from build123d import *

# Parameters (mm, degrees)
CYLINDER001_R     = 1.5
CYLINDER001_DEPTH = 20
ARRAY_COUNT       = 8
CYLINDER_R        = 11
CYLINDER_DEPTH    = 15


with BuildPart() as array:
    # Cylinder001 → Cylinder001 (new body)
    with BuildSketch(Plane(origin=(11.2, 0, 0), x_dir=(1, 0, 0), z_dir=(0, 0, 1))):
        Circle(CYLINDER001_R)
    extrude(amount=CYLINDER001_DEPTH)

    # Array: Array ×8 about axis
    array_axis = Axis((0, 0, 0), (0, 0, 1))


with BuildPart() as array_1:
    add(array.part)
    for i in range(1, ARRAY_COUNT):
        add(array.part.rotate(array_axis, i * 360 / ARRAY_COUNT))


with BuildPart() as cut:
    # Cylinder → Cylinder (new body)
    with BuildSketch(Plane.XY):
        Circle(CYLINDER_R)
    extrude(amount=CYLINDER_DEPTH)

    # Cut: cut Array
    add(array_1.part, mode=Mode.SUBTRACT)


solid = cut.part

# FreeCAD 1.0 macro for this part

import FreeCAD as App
import Part
import Sketcher
Q = App.Units.Quantity

doc = App.newDocument("Part")
body = doc.addObject("PartDesign::Body", "Body")

# Sketch on XY plane
sketch1 = body.newObject("Sketcher::SketchObject", "Sketch")
sketch1.AttachmentSupport = (doc.getObject("XY_Plane"), [""])
sketch1.MapMode = "FlatFace"
sketch1.addGeometry(Part.Circle(App.Vector(11.2, 0, 0), App.Vector(0, 0, 1), 1.5), False)
sketch1.addConstraint([
    Sketcher.Constraint("PointOnObject", 0, 3, -1),
    Sketcher.Constraint("Diameter", 0, Q("3 mm")),
    Sketcher.Constraint("DistanceX", -1, 1, 0, 3, Q("11.2 mm")),
])
pad1 = body.newObject("PartDesign::Pad", "Pad")
pad1.Profile = sketch1
pad1.Length = 20
body2 = doc.addObject("PartDesign::Body", "Body001")
body2.AllowCompound = True
doc.recompute()

body2.BaseFeature = body
doc.recompute()

body3 = doc.addObject("PartDesign::Body", "Body002")
body3.BaseFeature = body
body3.Placement = App.Placement(App.Vector(0, 0, 0), App.Rotation(App.Vector(0, 0, 1), 45))
boolean = body2.newObject("PartDesign::Boolean", "Boolean")
boolean.Type = "Fuse"
boolean.addObjects([body3])
doc.recompute()

body4 = doc.addObject("PartDesign::Body", "Body003")
body4.BaseFeature = body
body4.Placement = App.Placement(App.Vector(0, 0, 0), App.Rotation(App.Vector(0, 0, 1), 90))
boolean2 = body2.newObject("PartDesign::Boolean", "Boolean001")
boolean2.Type = "Fuse"
boolean2.addObjects([body4])
doc.recompute()

body5 = doc.addObject("PartDesign::Body", "Body004")
body5.BaseFeature = body
body5.Placement = App.Placement(App.Vector(0, 0, 0), App.Rotation(App.Vector(0, 0, 1), 135))
boolean3 = body2.newObject("PartDesign::Boolean", "Boolean002")
boolean3.Type = "Fuse"
boolean3.addObjects([body5])
doc.recompute()

body6 = doc.addObject("PartDesign::Body", "Body005")
body6.BaseFeature = body
body6.Placement = App.Placement(App.Vector(0, 0, 0), App.Rotation(App.Vector(0, 0, 1), 180))
boolean4 = body2.newObject("PartDesign::Boolean", "Boolean003")
boolean4.Type = "Fuse"
boolean4.addObjects([body6])
doc.recompute()

body7 = doc.addObject("PartDesign::Body", "Body006")
body7.BaseFeature = body
body7.Placement = App.Placement(App.Vector(0, 0, 0), App.Rotation(App.Vector(0, 0, 1), 225))
boolean5 = body2.newObject("PartDesign::Boolean", "Boolean004")
boolean5.Type = "Fuse"
boolean5.addObjects([body7])
doc.recompute()

body8 = doc.addObject("PartDesign::Body", "Body007")
body8.BaseFeature = body
body8.Placement = App.Placement(App.Vector(0, 0, 0), App.Rotation(App.Vector(0, 0, 1), 270))
boolean6 = body2.newObject("PartDesign::Boolean", "Boolean005")
boolean6.Type = "Fuse"
boolean6.addObjects([body8])
doc.recompute()

body.Placement = App.Placement(App.Vector(0, 0, 0), App.Rotation(App.Vector(0, 0, 1), 315))
boolean7 = body2.newObject("PartDesign::Boolean", "Boolean006")
boolean7.Type = "Fuse"
boolean7.addObjects([body])
body9 = doc.addObject("PartDesign::Body", "Body008")

# Sketch on XY plane
sketch2 = body9.newObject("Sketcher::SketchObject", "Sketch001")
sketch2.AttachmentSupport = (doc.getObject("XY_Plane008"), [""])
sketch2.MapMode = "FlatFace"
sketch2.addGeometry(Part.Circle(App.Vector(0, 0, 0), App.Vector(0, 0, 1), 11), False)
sketch2.addConstraint([
    Sketcher.Constraint("Coincident", 0, 3, -1, 1),
    Sketcher.Constraint("Diameter", 0, Q("22 mm")),
])
pad2 = body9.newObject("PartDesign::Pad", "Pad001")
pad2.Profile = sketch2
pad2.Length = 15
doc.recompute()

boolean8 = body9.newObject("PartDesign::Boolean", "Boolean007")
boolean8.Type = "Cut"
boolean8.addObjects([body2])

doc.recompute()
